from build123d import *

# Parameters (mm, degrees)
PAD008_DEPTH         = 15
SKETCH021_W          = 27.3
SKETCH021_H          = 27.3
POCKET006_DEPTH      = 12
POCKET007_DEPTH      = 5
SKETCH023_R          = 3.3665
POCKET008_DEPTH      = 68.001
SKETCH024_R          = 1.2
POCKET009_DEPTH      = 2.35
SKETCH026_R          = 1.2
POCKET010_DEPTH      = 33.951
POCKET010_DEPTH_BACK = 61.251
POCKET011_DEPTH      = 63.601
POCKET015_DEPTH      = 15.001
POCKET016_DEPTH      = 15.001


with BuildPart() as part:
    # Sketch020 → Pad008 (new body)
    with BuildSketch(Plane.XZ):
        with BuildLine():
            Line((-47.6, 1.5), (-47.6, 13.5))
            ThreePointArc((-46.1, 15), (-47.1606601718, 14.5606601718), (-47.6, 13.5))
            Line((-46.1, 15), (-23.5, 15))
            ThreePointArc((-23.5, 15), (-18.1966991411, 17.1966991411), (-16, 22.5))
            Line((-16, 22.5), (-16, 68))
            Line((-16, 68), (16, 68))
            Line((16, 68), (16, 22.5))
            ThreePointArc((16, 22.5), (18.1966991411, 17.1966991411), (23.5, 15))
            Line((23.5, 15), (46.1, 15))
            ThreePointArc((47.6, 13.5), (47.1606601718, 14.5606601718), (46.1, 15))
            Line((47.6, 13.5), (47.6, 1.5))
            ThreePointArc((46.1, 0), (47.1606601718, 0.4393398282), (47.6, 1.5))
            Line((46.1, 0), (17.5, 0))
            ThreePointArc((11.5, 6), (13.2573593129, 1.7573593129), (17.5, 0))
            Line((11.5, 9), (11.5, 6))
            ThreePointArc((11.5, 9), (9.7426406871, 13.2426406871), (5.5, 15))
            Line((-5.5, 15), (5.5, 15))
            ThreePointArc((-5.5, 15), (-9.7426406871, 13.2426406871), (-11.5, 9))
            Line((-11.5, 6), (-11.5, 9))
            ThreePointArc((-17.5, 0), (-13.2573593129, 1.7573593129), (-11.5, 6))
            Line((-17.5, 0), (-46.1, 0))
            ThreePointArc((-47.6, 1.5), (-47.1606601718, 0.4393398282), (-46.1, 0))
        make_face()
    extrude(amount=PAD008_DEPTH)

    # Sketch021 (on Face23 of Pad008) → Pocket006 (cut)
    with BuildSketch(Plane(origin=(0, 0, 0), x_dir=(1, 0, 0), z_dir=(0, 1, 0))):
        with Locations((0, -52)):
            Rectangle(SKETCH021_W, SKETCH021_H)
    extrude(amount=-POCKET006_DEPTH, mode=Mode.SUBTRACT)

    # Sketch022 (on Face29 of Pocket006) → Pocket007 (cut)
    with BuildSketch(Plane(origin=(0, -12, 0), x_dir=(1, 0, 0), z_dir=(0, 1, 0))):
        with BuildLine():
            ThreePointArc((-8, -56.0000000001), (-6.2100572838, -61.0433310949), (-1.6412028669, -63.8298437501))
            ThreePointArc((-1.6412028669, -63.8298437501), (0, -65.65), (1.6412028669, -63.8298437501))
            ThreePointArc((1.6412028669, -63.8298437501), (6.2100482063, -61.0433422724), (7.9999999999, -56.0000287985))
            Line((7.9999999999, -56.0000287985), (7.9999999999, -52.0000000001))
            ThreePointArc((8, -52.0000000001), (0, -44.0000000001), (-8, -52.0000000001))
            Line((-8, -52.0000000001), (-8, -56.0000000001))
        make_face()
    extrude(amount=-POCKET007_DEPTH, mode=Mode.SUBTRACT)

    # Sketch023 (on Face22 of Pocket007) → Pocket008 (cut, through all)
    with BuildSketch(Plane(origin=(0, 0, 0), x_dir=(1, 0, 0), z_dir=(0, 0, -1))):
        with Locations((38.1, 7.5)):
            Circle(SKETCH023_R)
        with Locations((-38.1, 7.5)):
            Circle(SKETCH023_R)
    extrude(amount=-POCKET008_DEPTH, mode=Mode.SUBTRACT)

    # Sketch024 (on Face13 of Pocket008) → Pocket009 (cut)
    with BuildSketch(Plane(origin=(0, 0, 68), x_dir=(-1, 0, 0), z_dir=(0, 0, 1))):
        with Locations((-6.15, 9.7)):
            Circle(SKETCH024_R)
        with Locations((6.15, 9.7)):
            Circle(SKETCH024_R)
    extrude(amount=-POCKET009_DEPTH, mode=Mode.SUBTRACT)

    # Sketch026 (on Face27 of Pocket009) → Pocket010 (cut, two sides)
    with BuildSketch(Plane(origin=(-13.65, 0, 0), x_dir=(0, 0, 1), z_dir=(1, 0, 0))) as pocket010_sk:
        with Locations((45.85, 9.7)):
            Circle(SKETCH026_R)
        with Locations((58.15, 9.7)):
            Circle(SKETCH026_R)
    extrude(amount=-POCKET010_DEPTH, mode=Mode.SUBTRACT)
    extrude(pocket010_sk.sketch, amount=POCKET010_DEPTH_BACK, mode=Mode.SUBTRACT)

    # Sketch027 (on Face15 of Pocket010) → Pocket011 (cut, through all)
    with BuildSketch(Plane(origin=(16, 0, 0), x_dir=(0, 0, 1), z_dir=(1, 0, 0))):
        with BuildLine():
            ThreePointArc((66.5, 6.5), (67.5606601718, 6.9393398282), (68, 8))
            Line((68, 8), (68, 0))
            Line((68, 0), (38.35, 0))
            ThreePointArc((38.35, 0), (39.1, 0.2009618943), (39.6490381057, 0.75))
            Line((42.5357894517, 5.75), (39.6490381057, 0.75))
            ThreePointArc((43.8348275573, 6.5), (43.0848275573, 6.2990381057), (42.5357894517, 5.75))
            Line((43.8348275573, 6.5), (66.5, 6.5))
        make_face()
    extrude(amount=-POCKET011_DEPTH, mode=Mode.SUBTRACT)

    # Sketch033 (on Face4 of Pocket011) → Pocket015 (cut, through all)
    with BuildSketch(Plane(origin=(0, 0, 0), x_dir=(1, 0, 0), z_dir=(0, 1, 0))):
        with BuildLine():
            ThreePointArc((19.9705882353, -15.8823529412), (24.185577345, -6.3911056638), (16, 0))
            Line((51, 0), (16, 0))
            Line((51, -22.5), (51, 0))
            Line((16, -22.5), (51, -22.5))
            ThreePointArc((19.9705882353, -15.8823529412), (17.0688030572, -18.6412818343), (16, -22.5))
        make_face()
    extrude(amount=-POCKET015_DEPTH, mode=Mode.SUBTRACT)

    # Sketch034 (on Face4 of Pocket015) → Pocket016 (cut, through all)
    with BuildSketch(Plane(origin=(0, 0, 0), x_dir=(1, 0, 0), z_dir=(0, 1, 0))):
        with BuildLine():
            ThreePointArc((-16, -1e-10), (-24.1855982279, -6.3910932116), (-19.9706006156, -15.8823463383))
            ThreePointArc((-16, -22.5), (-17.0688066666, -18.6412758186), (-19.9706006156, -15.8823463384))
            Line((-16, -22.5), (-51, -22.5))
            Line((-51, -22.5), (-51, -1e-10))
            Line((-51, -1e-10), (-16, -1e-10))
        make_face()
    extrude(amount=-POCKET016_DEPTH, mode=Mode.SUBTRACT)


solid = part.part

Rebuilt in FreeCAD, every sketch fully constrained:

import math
import FreeCAD as App
import Part
import Sketcher

V = App.Vector
Q = App.Units.Quantity


def add_polygon(sketch, points):
    """Adds a closed chain of lines whose ends are joined by coincident constraints."""
    first, n = sketch.GeometryCount, len(points)
    for a, b in zip(points, points[1:] + points[:1]):
        sketch.addGeometry(Part.LineSegment(App.Vector(*a, 0), App.Vector(*b, 0)), False)
    for i in range(n):
        sketch.addConstraint(Sketcher.Constraint("Coincident", first + i, 2, first + (i + 1) % n, 1))

doc = App.newDocument("Part")
body = doc.addObject("PartDesign::Body", "Body")

sketch1 = body.newObject("Sketcher::SketchObject", "Sketch")
sketch1.AttachmentSupport = (doc.getObject("XZ_Plane"), [""])
sketch1.MapMode = "FlatFace"
sketch1.addGeometry([
    Part.LineSegment(V(-47.6, 13.5, 0), V(-47.6, 1.5, 0)),
    Part.ArcOfCircle(Part.Circle(V(-46.1, 1.5, 0), V(0, 0, 1), 1.5), math.radians(180), math.radians(270)),
    Part.LineSegment(V(-46.1, 0, 0), V(-17.5, 0, 0)),
    Part.ArcOfCircle(Part.Circle(V(-17.5, 6, 0), V(0, 0, 1), 6), math.radians(-90), math.radians(0)),
    Part.LineSegment(V(-11.5, 6, 0), V(-11.5, 9, 0)),
    Part.ArcOfCircle(Part.Circle(V(-5.5, 9, 0), V(0, 0, 1), 6), math.radians(90), math.radians(180)),
    Part.LineSegment(V(-5.5, 15, 0), V(5.5, 15, 0)),
    Part.ArcOfCircle(Part.Circle(V(5.5, 9, 0), V(0, 0, 1), 6), math.radians(0), math.radians(90)),
    Part.LineSegment(V(11.5, 9, 0), V(11.5, 6, 0)),
    Part.ArcOfCircle(Part.Circle(V(17.5, 6, 0), V(0, 0, 1), 6), math.radians(180), math.radians(270)),
    Part.LineSegment(V(17.5, 0, 0), V(46.1, 0, 0)),
    Part.ArcOfCircle(Part.Circle(V(46.1, 1.5, 0), V(0, 0, 1), 1.5), math.radians(-90), math.radians(0)),
    Part.LineSegment(V(47.6, 1.5, 0), V(47.6, 13.5, 0)),
    Part.ArcOfCircle(Part.Circle(V(46.1, 13.5, 0), V(0, 0, 1), 1.5), math.radians(0), math.radians(90)),
    Part.LineSegment(V(46.1, 15, 0), V(23.5, 15, 0)),
    Part.ArcOfCircle(Part.Circle(V(23.5, 22.5, 0), V(0, 0, 1), 7.5), math.radians(180), math.radians(270)),
    Part.LineSegment(V(16, 22.5, 0), V(16, 68, 0)),
    Part.LineSegment(V(16, 68, 0), V(-16, 68, 0)),
    Part.LineSegment(V(-16, 68, 0), V(-16, 22.5, 0)),
    Part.ArcOfCircle(Part.Circle(V(-23.5, 22.5, 0), V(0, 0, 1), 7.5), math.radians(-90), math.radians(0)),
    Part.LineSegment(V(-23.5, 15, 0), V(-46.1, 15, 0)),
    Part.ArcOfCircle(Part.Circle(V(-46.1, 13.5, 0), V(0, 0, 1), 1.5), math.radians(90), math.radians(180)),
], False)
sketch1.addConstraint([
    Sketcher.Constraint("Tangent", 0, 2, 1, 1),
    Sketcher.Constraint("Tangent", 1, 2, 2, 1),
    Sketcher.Constraint("Tangent", 2, 2, 3, 1),
    Sketcher.Constraint("Tangent", 3, 2, 4, 1),
    Sketcher.Constraint("Tangent", 4, 2, 5, 2),
    Sketcher.Constraint("Tangent", 5, 1, 6, 1),
    Sketcher.Constraint("Tangent", 6, 2, 7, 2),
    Sketcher.Constraint("Tangent", 7, 1, 8, 1),
    Sketcher.Constraint("Tangent", 8, 2, 9, 1),
    Sketcher.Constraint("Tangent", 9, 2, 10, 1),
    Sketcher.Constraint("Tangent", 10, 2, 11, 1),
    Sketcher.Constraint("Tangent", 11, 2, 12, 1),
    Sketcher.Constraint("Tangent", 12, 2, 13, 1),
    Sketcher.Constraint("Tangent", 13, 2, 14, 1),
    Sketcher.Constraint("Tangent", 14, 2, 15, 2),
    Sketcher.Constraint("Tangent", 15, 1, 16, 1),
    Sketcher.Constraint("Coincident", 16, 2, 17, 1),
    Sketcher.Constraint("Coincident", 17, 2, 18, 1),
    Sketcher.Constraint("Tangent", 18, 2, 19, 2),
    Sketcher.Constraint("Tangent", 19, 1, 20, 1),
    Sketcher.Constraint("Tangent", 20, 2, 21, 1),
    Sketcher.Constraint("Tangent", 21, 2, 0, 1),
    Sketcher.Constraint("Vertical", 0),
    Sketcher.Constraint("Horizontal", 2),
    Sketcher.Constraint("Vertical", 4),
    Sketcher.Constraint("Horizontal", 6),
    Sketcher.Constraint("Vertical", 8),
    Sketcher.Constraint("Horizontal", 10),
    Sketcher.Constraint("Vertical", 12),
    Sketcher.Constraint("Horizontal", 14),
    Sketcher.Constraint("Vertical", 16),
    Sketcher.Constraint("Horizontal", 17),
    Sketcher.Constraint("Vertical", 18),
    Sketcher.Constraint("Horizontal", 20),
    Sketcher.Constraint("Equal", 3, 5),
    Sketcher.Constraint("Equal", 5, 7),
    Sketcher.Constraint("Equal", 7, 9),
    Sketcher.Constraint("Equal", 1, 11),
    Sketcher.Constraint("Equal", 11, 13),
    Sketcher.Constraint("Equal", 15, 19),
    Sketcher.Constraint("Equal", 13, 21),
    Sketcher.Constraint("Symmetric", 2, 2, 9, 2, -1, 1),
    Sketcher.Constraint("Symmetric", 1, 3, 11, 3, -2),
    Sketcher.Constraint("Symmetric", 15, 3, 19, 3, -2),
    Sketcher.Constraint("Horizontal", 6, 2, 13, 2),
    Sketcher.Constraint("Radius", 3, Q("6 mm")),
    Sketcher.Constraint("Radius", 1, Q("1.5 mm")),
    Sketcher.Constraint("Radius", 15, Q("7.5 mm")),
    Sketcher.Constraint("DistanceX", 6, 1, 6, 2, Q("11 mm")),
    Sketcher.Constraint("DistanceX", 17, 2, 17, 1, Q("32 mm")),
    Sketcher.Constraint("DistanceY", 0, 2, 0, 1, Q("12 mm")),
    Sketcher.Constraint("DistanceX", 2, 1, 2, 2, Q("28.6 mm")),
    Sketcher.Constraint("DistanceY", 16, 1, 16, 2, Q("45.5 mm")),
])
pad1 = body.newObject("PartDesign::Pad", "Pad")
pad1.Profile = sketch1
pad1.Length = 15

sketch2 = body.newObject("Sketcher::SketchObject", "Sketch001")
sketch2.AttachmentSupport = (doc.getObject("XZ_Plane"), [""])
sketch2.MapMode = "FlatFace"
add_polygon(sketch2, [(-14, 38), (-14, 66), (14, 66), (14, 38)])
sketch2.addConstraint([
    Sketcher.Constraint("Vertical", 0),
    Sketcher.Constraint("Horizontal", 1),
    Sketcher.Constraint("Vertical", 2),
    Sketcher.Constraint("Horizontal", 3),
    Sketcher.Constraint("Equal", 3, 0),
    Sketcher.Constraint("DistanceX", 1, 1, 1, 2, Q("27.3 mm")),
    Sketcher.Constraint("DistanceX", 0, 2, -1, 1, Q("13.65 mm")),
    Sketcher.Constraint("DistanceY", -1, 1, 0, 2, Q("65.65 mm")),
])
pocket1 = body.newObject("PartDesign::Pocket", "Pocket")
pocket1.Profile = sketch2
pocket1.Length = 12
pocket1.Reversed = True

sketch3 = body.newObject("Sketcher::SketchObject", "Sketch002")
sketch3.AttachmentSupport = (doc.getObject("XZ_Plane"), [""])
sketch3.MapMode = "FlatFace"
sketch3.AttachmentOffset = App.Placement(V(0, 0, 12), App.Rotation())
sketch3.addGeometry([
    Part.ArcOfCircle(Part.Circle(V(0, 56, 0), V(0, 0, 1), 8), math.radians(102), math.radians(180)),
    Part.ArcOfCircle(Part.Circle(V(0, 64, 0), V(0, 0, 1), 1.6), math.radians(-6), math.radians(186)),
    Part.ArcOfCircle(Part.Circle(V(0, 56, 0), V(0, 0, 1), 8), math.radians(0), math.radians(78)),
    Part.LineSegment(V(8, 56, 0), V(8, 52, 0)),
    Part.ArcOfCircle(Part.Circle(V(0, 52, 0), V(0, 0, 1), 8), math.radians(180), math.radians(360)),
    Part.LineSegment(V(-8, 52, 0), V(-8, 56, 0)),
], False)
sketch3.addConstraint([
    Sketcher.Constraint("Coincident", 0, 1, 1, 2),
    Sketcher.Constraint("Coincident", 1, 1, 2, 2),
    Sketcher.Constraint("Coincident", 2, 1, 3, 1),
    Sketcher.Constraint("Tangent", 3, 2, 4, 2),
    Sketcher.Constraint("Tangent", 4, 1, 5, 1),
    Sketcher.Constraint("Tangent", 5, 2, 0, 2),
    Sketcher.Constraint("Vertical", 3),
    Sketcher.Constraint("Vertical", 5),
    Sketcher.Constraint("Coincident", 2, 3, 0, 3),
    Sketcher.Constraint("Equal", 0, 2),
    Sketcher.Constraint("Symmetric", 0, 1, 1, 1, -2),
    Sketcher.Constraint("Radius", 0, Q("8 mm")),
    Sketcher.Constraint("DistanceY", 5, 1, 5, 2, Q("4 mm")),
    Sketcher.Constraint("Radius", 1, Q("1.65 mm")),
    Sketcher.Constraint("DistanceY", -1, 1, 0, 3, Q("56 mm")),
    Sketcher.Constraint("DistanceY", -1, 1, 1, 3, Q("64 mm")),
    Sketcher.Constraint("DistanceY", 3, 2, 3, 1, Q("4.000029 mm")),
])
pocket2 = body.newObject("PartDesign::Pocket", "Pocket001")
pocket2.Profile = sketch3
pocket2.Length = 5
pocket2.Reversed = True

sketch4 = body.newObject("Sketcher::SketchObject", "Sketch003")
sketch4.AttachmentSupport = (doc.getObject("XY_Plane"), [""])
sketch4.MapMode = "FlatFace"
sketch4.addGeometry([
    Part.Circle(V(38.1, -7.5, 0), V(0, 0, 1), 3.4),
    Part.Circle(V(-38.1, -7.5, 0), V(0, 0, 1), 3.4),
], False)
sketch4.addConstraint([
    Sketcher.Constraint("Equal", 0, 1),
    Sketcher.Constraint("Symmetric", 0, 3, 1, 3, -2),
    Sketcher.Constraint("Diameter", 0, Q("6.733 mm")),
    Sketcher.Constraint("DistanceX", -1, 1, 0, 3, Q("38.1 mm")),
    Sketcher.Constraint("DistanceY", 0, 3, -1, 1, Q("7.5 mm")),
])
pocket3 = body.newObject("PartDesign::Pocket", "Pocket002")
pocket3.Profile = sketch4
pocket3.Type = "ThroughAll"
pocket3.Reversed = True

sketch5 = body.newObject("Sketcher::SketchObject", "Sketch004")
sketch5.AttachmentSupport = (doc.getObject("XY_Plane"), [""])
sketch5.MapMode = "FlatFace"
sketch5.AttachmentOffset = App.Placement(V(0, 0, 68), App.Rotation())
sketch5.addGeometry([
    Part.Circle(V(6.2, -9.7, 0), V(0, 0, 1), 1.2),
    Part.Circle(V(-6.2, -9.7, 0), V(0, 0, 1), 1.2),
], False)
sketch5.addConstraint([
    Sketcher.Constraint("Equal", 0, 1),
    Sketcher.Constraint("Symmetric", 0, 3, 1, 3, -2),
    Sketcher.Constraint("Diameter", 0, Q("2.4 mm")),
    Sketcher.Constraint("DistanceY", 0, 3, -1, 1, Q("9.7 mm")),
    Sketcher.Constraint("DistanceX", 1, 3, 0, 3, Q("12.3 mm")),
])
pocket4 = body.newObject("PartDesign::Pocket", "Pocket003")
pocket4.Profile = sketch5
pocket4.Length = 2.35

sketch6 = body.newObject("Sketcher::SketchObject", "Sketch005")
sketch6.AttachmentSupport = (doc.getObject("YZ_Plane"), [""])
sketch6.MapMode = "FlatFace"
sketch6.AttachmentOffset = App.Placement(V(0, 0, -13.65), App.Rotation())
sketch6.addGeometry([
    Part.Circle(V(-9.7, 45.9, 0), V(0, 0, 1), 1.2),
    Part.Circle(V(-9.7, 58.1, 0), V(0, 0, 1), 1.2),
], False)
sketch6.addConstraint([
    Sketcher.Constraint("Equal", 0, 1),
    Sketcher.Constraint("Vertical", 0, 3, 1, 3),
    Sketcher.Constraint("Diameter", 0, Q("2.4 mm")),
    Sketcher.Constraint("DistanceX", 0, 3, -1, 1, Q("9.7 mm")),
    Sketcher.Constraint("DistanceY", 0, 3, 1, 3, Q("12.3 mm")),
    Sketcher.Constraint("DistanceY", -1, 1, 0, 3, Q("45.85 mm")),
])
pocket5 = body.newObject("PartDesign::Pocket", "Pocket004")
pocket5.Profile = sketch6
pocket5.Type = "ThroughAll"
pocket5.Midplane = True

sketch7 = body.newObject("Sketcher::SketchObject", "Sketch006")
sketch7.AttachmentSupport = (doc.getObject("YZ_Plane"), [""])
sketch7.MapMode = "FlatFace"
sketch7.AttachmentOffset = App.Placement(V(0, 0, 16), App.Rotation())
sketch7.addGeometry([
    Part.ArcOfCircle(Part.Circle(V(-8, 66.5, 0), V(0, 0, 1), 1.5), math.radians(0), math.radians(90)),
    Part.LineSegment(V(-6.5, 66.5, 0), V(-6.5, 43.8, 0)),
    Part.ArcOfCircle(Part.Circle(V(-5, 43.8, 0), V(0, 0, 1), 1.5), math.radians(180), math.radians(240)),
    Part.LineSegment(V(-5.8, 42.5, 0), V(-0.8, 39.6, 0)),
    Part.ArcOfCircle(Part.Circle(V(-1.5, 38.4, 0), V(0, 0, 1), 1.5), math.radians(0), math.radians(60)),
    Part.LineSegment(V(0, 38.4, 0), V(0, 68, 0)),
    Part.LineSegment(V(0, 68, 0), V(-8, 68, 0)),
], False)
sketch7.addConstraint([
    Sketcher.Constraint("Tangent", 0, 1, 1, 1),
    Sketcher.Constraint("Tangent", 1, 2, 2, 1),
    Sketcher.Constraint("Tangent", 2, 2, 3, 1),
    Sketcher.Constraint("Tangent", 3, 2, 4, 2),
    Sketcher.Constraint("Tangent", 4, 1, 5, 1),
    Sketcher.Constraint("Coincident", 5, 2, 6, 1),
    Sketcher.Constraint("Tangent", 6, 2, 0, 2),
    Sketcher.Constraint("Vertical", 1),
    Sketcher.Constraint("Vertical", 5),
    Sketcher.Constraint("Horizontal", 6),
    Sketcher.Constraint("Equal", 0, 2),
    Sketcher.Constraint("Equal", 2, 4),
    Sketcher.Constraint("PointOnObject", 4, 1, -2),
    Sketcher.Constraint("Radius", 0, Q("1.5 mm")),
    Sketcher.Constraint("DistanceX", 6, 2, 6, 1, Q("8 mm")),
    Sketcher.Constraint("Angle", 3, Q("-30 deg")),
    Sketcher.Constraint("DistanceY", -1, 1, 5, 2, Q("68 mm")),
    Sketcher.Constraint("DistanceY", 5, 1, 5, 2, Q("29.65 mm")),
])
pocket6 = body.newObject("PartDesign::Pocket", "Pocket005")
pocket6.Profile = sketch7
pocket6.Type = "ThroughAll"

sketch8 = body.newObject("Sketcher::SketchObject", "Sketch007")
sketch8.AttachmentSupport = (doc.getObject("XZ_Plane"), [""])
sketch8.MapMode = "FlatFace"
sketch8.addGeometry([
    Part.ArcOfCircle(Part.Circle(V(16, 8, 0), V(0, 0, 1), 8), math.radians(-90), math.radians(62)),
    Part.ArcOfCircle(Part.Circle(V(24, 22, 0), V(0, 0, 1), 8), math.radians(180), math.radians(242)),
    Part.LineSegment(V(16, 22, 0), V(51, 22, 0)),
    Part.LineSegment(V(51, 22, 0), V(51, 0, 0)),
    Part.LineSegment(V(51, 0, 0), V(16, 0, 0)),
], False)
sketch8.addConstraint([
    Sketcher.Constraint("Tangent", 0, 2, 1, 2),
    Sketcher.Constraint("Coincident", 1, 1, 2, 1),
    Sketcher.Constraint("Coincident", 2, 2, 3, 1),
    Sketcher.Constraint("Coincident", 3, 2, 4, 1),
    Sketcher.Constraint("Tangent", 4, 2, 0, 1),
    Sketcher.Constraint("Horizontal", 2),
    Sketcher.Constraint("Vertical", 3),
    Sketcher.Constraint("Horizontal", 4),
    Sketcher.Constraint("PointOnObject", 3, 2, -1),
    Sketcher.Constraint("Vertical", 0, 3, 1, 1),
    Sketcher.Constraint("Radius", 1, Q("7.5 mm")),
    Sketcher.Constraint("DistanceX", 2, 1, 2, 2, Q("35 mm")),
    Sketcher.Constraint("DistanceY", 3, 2, 3, 1, Q("22.5 mm")),
    Sketcher.Constraint("DistanceX", -1, 1, 0, 3, Q("16 mm")),
    Sketcher.Constraint("DistanceY", -1, 1, 1, 3, Q("22.5 mm")),
])
pocket7 = body.newObject("PartDesign::Pocket", "Pocket006")
pocket7.Profile = sketch8
pocket7.Type = "ThroughAll"
pocket7.Reversed = True

sketch9 = body.newObject("Sketcher::SketchObject", "Sketch008")
sketch9.AttachmentSupport = (doc.getObject("XZ_Plane"), [""])
sketch9.MapMode = "FlatFace"
sketch9.addGeometry([
    Part.ArcOfCircle(Part.Circle(V(-16, 8, 0), V(0, 0, 1), 8), math.radians(118), math.radians(270)),
    Part.LineSegment(V(-16, 0, 0), V(-51, 0, 0)),
    Part.LineSegment(V(-51, 0, 0), V(-51, 22, 0)),
    Part.LineSegment(V(-51, 22, 0), V(-16, 22, 0)),
    Part.ArcOfCircle(Part.Circle(V(-24, 22, 0), V(0, 0, 1), 8), math.radians(-62), math.radians(0)),
], False)
sketch9.addConstraint([
    Sketcher.Constraint("Coincident", 0, 2, 1, 1),
    Sketcher.Constraint("Coincident", 1, 2, 2, 1),
    Sketcher.Constraint("Coincident", 2, 2, 3, 1),
    Sketcher.Constraint("Coincident", 3, 2, 4, 2),
    Sketcher.Constraint("Tangent", 4, 1, 0, 1),
    Sketcher.Constraint("Horizontal", 1),
    Sketcher.Constraint("Vertical", 2),
    Sketcher.Constraint("Horizontal", 3),
    Sketcher.Constraint("PointOnObject", 0, 2, -1),
    Sketcher.Constraint("Horizontal", 4, 3, 2, 2),
    Sketcher.Constraint("Vertical", 0, 2, 3, 2),
    Sketcher.Constraint("Radius", 4, Q("7.5 mm")),
    Sketcher.Constraint("DistanceX", 1, 2, 1, 1, Q("35 mm")),
    Sketcher.Constraint("DistanceY", 2, 1, 2, 2, Q("22.5 mm")),
    Sketcher.Constraint("DistanceX", 0, 2, -1, 1, Q("16 mm")),
    Sketcher.Constraint("Radius", 0, Q("8.437493 mm")),
])
pocket8 = body.newObject("PartDesign::Pocket", "Pocket007")
pocket8.Profile = sketch9
pocket8.Type = "ThroughAll"
pocket8.Reversed = True

doc.recompute()
